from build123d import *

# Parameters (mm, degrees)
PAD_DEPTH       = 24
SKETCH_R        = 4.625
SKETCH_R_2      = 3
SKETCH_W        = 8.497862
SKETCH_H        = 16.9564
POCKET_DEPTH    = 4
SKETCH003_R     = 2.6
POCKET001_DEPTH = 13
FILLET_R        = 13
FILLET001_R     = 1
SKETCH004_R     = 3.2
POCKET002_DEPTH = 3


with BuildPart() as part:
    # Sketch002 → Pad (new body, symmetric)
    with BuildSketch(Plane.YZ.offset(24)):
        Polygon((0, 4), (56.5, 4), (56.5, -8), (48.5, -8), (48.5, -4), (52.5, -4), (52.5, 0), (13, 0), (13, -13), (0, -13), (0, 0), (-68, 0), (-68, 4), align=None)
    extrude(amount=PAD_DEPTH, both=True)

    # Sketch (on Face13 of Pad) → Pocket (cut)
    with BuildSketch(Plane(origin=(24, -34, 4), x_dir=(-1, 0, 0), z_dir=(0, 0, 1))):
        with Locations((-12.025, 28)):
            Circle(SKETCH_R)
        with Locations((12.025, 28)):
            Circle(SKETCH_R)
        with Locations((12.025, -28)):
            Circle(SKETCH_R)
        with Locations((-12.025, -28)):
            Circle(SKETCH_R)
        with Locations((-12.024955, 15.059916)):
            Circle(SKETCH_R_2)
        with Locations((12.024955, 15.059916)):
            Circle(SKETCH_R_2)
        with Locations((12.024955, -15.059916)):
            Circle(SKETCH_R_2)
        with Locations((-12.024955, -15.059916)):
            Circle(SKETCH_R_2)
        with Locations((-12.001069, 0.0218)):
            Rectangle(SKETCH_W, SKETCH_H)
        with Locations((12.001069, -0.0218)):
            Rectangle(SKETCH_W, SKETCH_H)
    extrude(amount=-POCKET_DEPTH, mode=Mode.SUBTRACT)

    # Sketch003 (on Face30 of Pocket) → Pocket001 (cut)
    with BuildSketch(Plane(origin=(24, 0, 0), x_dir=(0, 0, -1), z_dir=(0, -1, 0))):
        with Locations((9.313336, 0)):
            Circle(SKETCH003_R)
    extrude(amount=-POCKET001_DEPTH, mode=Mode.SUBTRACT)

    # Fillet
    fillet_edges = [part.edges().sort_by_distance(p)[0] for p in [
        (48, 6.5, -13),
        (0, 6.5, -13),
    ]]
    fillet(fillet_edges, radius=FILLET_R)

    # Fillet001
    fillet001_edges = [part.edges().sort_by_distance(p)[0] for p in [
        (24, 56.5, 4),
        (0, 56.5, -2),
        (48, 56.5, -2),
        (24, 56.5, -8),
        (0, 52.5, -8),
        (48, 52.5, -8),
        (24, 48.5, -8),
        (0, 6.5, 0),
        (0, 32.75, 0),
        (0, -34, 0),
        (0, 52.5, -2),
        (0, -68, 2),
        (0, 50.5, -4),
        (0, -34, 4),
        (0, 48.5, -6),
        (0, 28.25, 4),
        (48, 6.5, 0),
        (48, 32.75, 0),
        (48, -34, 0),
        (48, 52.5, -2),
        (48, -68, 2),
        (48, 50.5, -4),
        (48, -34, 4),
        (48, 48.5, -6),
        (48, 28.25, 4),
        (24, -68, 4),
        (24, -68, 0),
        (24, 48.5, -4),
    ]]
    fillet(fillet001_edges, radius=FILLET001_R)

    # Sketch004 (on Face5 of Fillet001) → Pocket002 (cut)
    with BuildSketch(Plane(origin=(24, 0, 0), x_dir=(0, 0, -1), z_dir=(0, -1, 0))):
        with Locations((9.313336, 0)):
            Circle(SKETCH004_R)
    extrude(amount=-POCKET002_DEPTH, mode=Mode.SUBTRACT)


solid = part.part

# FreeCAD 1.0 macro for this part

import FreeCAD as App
import Part
import Sketcher

V = App.Vector


def edges_at(feature, points):
    """Names of the edges that pass closest to the given points."""
    edges = feature.Shape.Edges
    near = lambda p: min(range(len(edges)), key=lambda i: edges[i].distToShape(Part.Vertex(*p))[0])
    return sorted({f"Edge{near(p) + 1}" for p in points})

doc = App.newDocument("Part")
body = doc.addObject("PartDesign::Body", "Body")

sketch1 = doc.addObject("Sketcher::SketchObject", "Sketch")
body.addObject(sketch1)
sketch1.AttachmentSupport = (doc.YZ_Plane, [""])
sketch1.MapMode = "FlatFace"
sketch1.AttachmentOffset = App.Placement(V(0, 0, 24), App.Rotation())
sketch1.addGeometry(Part.LineSegment(V(56.5, 4, 0), V(-68, 4, 0)), False)
sketch1.addGeometry(Part.LineSegment(V(-68, 4, 0), V(-68, 0, 0)), False)
sketch1.addGeometry(Part.LineSegment(V(-68, 0, 0), V(0, 0, 0)), False)
sketch1.addGeometry(Part.LineSegment(V(0, 0, 0), V(0, -13, 0)), False)
sketch1.addGeometry(Part.LineSegment(V(0, -13, 0), V(13, -13, 0)), False)
sketch1.addGeometry(Part.LineSegment(V(13, -13, 0), V(13, 0, 0)), False)
sketch1.addGeometry(Part.LineSegment(V(13, 0, 0), V(52.5, 0, 0)), False)
sketch1.addGeometry(Part.LineSegment(V(52.5, 0, 0), V(52.5, -4, 0)), False)
sketch1.addGeometry(Part.LineSegment(V(52.5, -4, 0), V(48.5, -4, 0)), False)
sketch1.addGeometry(Part.LineSegment(V(48.5, -4, 0), V(48.5, -8, 0)), False)
sketch1.addGeometry(Part.LineSegment(V(48.5, -8, 0), V(56.5, -8, 0)), False)
sketch1.addGeometry(Part.LineSegment(V(56.5, -8, 0), V(56.5, 4, 0)), False)
sketch1.addConstraint(Sketcher.Constraint("Coincident", 0, 2, 1, 1))
sketch1.addConstraint(Sketcher.Constraint("Coincident", 1, 2, 2, 1))
sketch1.addConstraint(Sketcher.Constraint("Coincident", 2, 2, 3, 1))
sketch1.addConstraint(Sketcher.Constraint("Coincident", 3, 2, 4, 1))
sketch1.addConstraint(Sketcher.Constraint("Coincident", 4, 2, 5, 1))
sketch1.addConstraint(Sketcher.Constraint("Coincident", 5, 2, 6, 1))
sketch1.addConstraint(Sketcher.Constraint("Coincident", 6, 2, 7, 1))
sketch1.addConstraint(Sketcher.Constraint("Coincident", 7, 2, 8, 1))
sketch1.addConstraint(Sketcher.Constraint("Coincident", 8, 2, 9, 1))
sketch1.addConstraint(Sketcher.Constraint("Coincident", 9, 2, 10, 1))
sketch1.addConstraint(Sketcher.Constraint("Coincident", 10, 2, 11, 1))
sketch1.addConstraint(Sketcher.Constraint("Coincident", 11, 2, 0, 1))
sketch1.addConstraint(Sketcher.Constraint("Horizontal", 0))
sketch1.addConstraint(Sketcher.Constraint("Vertical", 1))
sketch1.addConstraint(Sketcher.Constraint("Horizontal", 2))
sketch1.addConstraint(Sketcher.Constraint("Vertical", 3))
sketch1.addConstraint(Sketcher.Constraint("Horizontal", 4))
sketch1.addConstraint(Sketcher.Constraint("Vertical", 5))
sketch1.addConstraint(Sketcher.Constraint("Horizontal", 6))
sketch1.addConstraint(Sketcher.Constraint("Vertical", 7))
sketch1.addConstraint(Sketcher.Constraint("Horizontal", 8))
sketch1.addConstraint(Sketcher.Constraint("Vertical", 9))
sketch1.addConstraint(Sketcher.Constraint("Horizontal", 10))
sketch1.addConstraint(Sketcher.Constraint("Vertical", 11))
sketch1.addConstraint(Sketcher.Constraint("Coincident", 2, 2, -1, 1))
sketch1.addConstraint(Sketcher.Constraint("PointOnObject", 5, 2, -1))
sketch1.addConstraint(Sketcher.Constraint("Equal", 8, 1))
sketch1.addConstraint(Sketcher.Constraint("Equal", 4, 3))
sketch1.addConstraint(Sketcher.Constraint("Equal", 1, 7))
sketch1.addConstraint(Sketcher.Constraint("Equal", 7, 9))
sketch1.addConstraint(Sketcher.Constraint("DistanceX", 2, 1, 2, 2, 68.0))
sketch1.addConstraint(Sketcher.Constraint("DistanceX", 4, 1, 4, 2, 13.0))
sketch1.addConstraint(Sketcher.Constraint("DistanceX", 8, 2, 8, 1, 4.0))
sketch1.addConstraint(Sketcher.Constraint("DistanceX", 10, 1, 10, 2, 8.0))
sketch1.addConstraint(Sketcher.Constraint("DistanceX", 0, 2, 0, 1, 124.5))
pad1 = doc.addObject("PartDesign::Pad", "Pad")
body.addObject(pad1)
pad1.Profile = sketch1
pad1.Length = 48
pad1.Midplane = True

sketch2 = doc.addObject("Sketcher::SketchObject", "Sketch001")
body.addObject(sketch2)
sketch2.AttachmentSupport = (doc.XY_Plane, [""])
sketch2.MapMode = "FlatFace"
sketch2.AttachmentOffset = App.Placement(V(0, 0, 4), App.Rotation())
sketch2.addGeometry(Part.Circle(V(36, -62, 0), V(0, 0, 1), 4.6), False)
sketch2.addGeometry(Part.Circle(V(12, -62, 0), V(0, 0, 1), 4.6), False)
sketch2.addGeometry(Part.Circle(V(12, -6, 0), V(0, 0, 1), 4.6), False)
sketch2.addGeometry(Part.Circle(V(36, -6, 0), V(0, 0, 1), 4.6), False)
sketch2.addGeometry(Part.Circle(V(36, -49.1, 0), V(0, 0, 1), 3), False)
sketch2.addGeometry(Part.Circle(V(12, -49.1, 0), V(0, 0, 1), 3), False)
sketch2.addGeometry(Part.Circle(V(12, -18.9, 0), V(0, 0, 1), 3), False)
sketch2.addGeometry(Part.Circle(V(36, -18.9, 0), V(0, 0, 1), 3), False)
sketch2.addGeometry(Part.LineSegment(V(40.2, -42.5, 0), V(40.2, -25.5, 0)), False)
sketch2.addGeometry(Part.LineSegment(V(40.2, -25.5, 0), V(31.8, -25.5, 0)), False)
sketch2.addGeometry(Part.LineSegment(V(31.8, -25.5, 0), V(31.8, -42.5, 0)), False)
sketch2.addGeometry(Part.LineSegment(V(31.8, -42.5, 0), V(40.2, -42.5, 0)), False)
sketch2.addGeometry(Part.LineSegment(V(16.2, -42.5, 0), V(16.2, -25.5, 0)), False)
sketch2.addGeometry(Part.LineSegment(V(16.2, -25.5, 0), V(7.8, -25.5, 0)), False)
sketch2.addGeometry(Part.LineSegment(V(7.8, -25.5, 0), V(7.8, -42.5, 0)), False)
sketch2.addGeometry(Part.LineSegment(V(7.8, -42.5, 0), V(16.2, -42.5, 0)), False)
sketch2.addConstraint(Sketcher.Constraint("Coincident", 8, 2, 9, 1))
sketch2.addConstraint(Sketcher.Constraint("Coincident", 9, 2, 10, 1))
sketch2.addConstraint(Sketcher.Constraint("Coincident", 10, 2, 11, 1))
sketch2.addConstraint(Sketcher.Constraint("Coincident", 11, 2, 8, 1))
sketch2.addConstraint(Sketcher.Constraint("Coincident", 12, 2, 13, 1))
sketch2.addConstraint(Sketcher.Constraint("Coincident", 13, 2, 14, 1))
sketch2.addConstraint(Sketcher.Constraint("Coincident", 14, 2, 15, 1))
sketch2.addConstraint(Sketcher.Constraint("Coincident", 15, 2, 12, 1))
sketch2.addConstraint(Sketcher.Constraint("Vertical", 8))
sketch2.addConstraint(Sketcher.Constraint("Horizontal", 9))
sketch2.addConstraint(Sketcher.Constraint("Vertical", 10))
sketch2.addConstraint(Sketcher.Constraint("Horizontal", 11))
sketch2.addConstraint(Sketcher.Constraint("Vertical", 12))
sketch2.addConstraint(Sketcher.Constraint("Horizontal", 13))
sketch2.addConstraint(Sketcher.Constraint("Vertical", 14))
sketch2.addConstraint(Sketcher.Constraint("Horizontal", 15))
sketch2.addConstraint(Sketcher.Constraint("Equal", 0, 1))
sketch2.addConstraint(Sketcher.Constraint("Equal", 1, 2))
sketch2.addConstraint(Sketcher.Constraint("Equal", 2, 3))
sketch2.addConstraint(Sketcher.Constraint("Equal", 4, 5))
sketch2.addConstraint(Sketcher.Constraint("Equal", 5, 6))
sketch2.addConstraint(Sketcher.Constraint("Equal", 6, 7))
sketch2.addConstraint(Sketcher.Constraint("Horizontal", 0, 3, 1, 3))
sketch2.addConstraint(Sketcher.Constraint("Horizontal", 2, 3, 3, 3))
sketch2.addConstraint(Sketcher.Constraint("Horizontal", 4, 3, 5, 3))
sketch2.addConstraint(Sketcher.Constraint("Horizontal", 6, 3, 7, 3))
sketch2.addConstraint(Sketcher.Constraint("Vertical", 1, 3, 2, 3))
sketch2.addConstraint(Sketcher.Constraint("Vertical", 0, 3, 3, 3))
sketch2.addConstraint(Sketcher.Constraint("Vertical", 5, 3, 6, 3))
sketch2.addConstraint(Sketcher.Constraint("Vertical", 4, 3, 7, 3))
sketch2.addConstraint(Sketcher.Constraint("Equal", 11, 13))
sketch2.addConstraint(Sketcher.Constraint("Equal", 10, 12))
sketch2.addConstraint(Sketcher.Constraint("Diameter", 4, 6.0))
sketch2.addConstraint(Sketcher.Constraint("Diameter", 0, 9.25))
sketch2.addConstraint(Sketcher.Constraint("DistanceY", 0, 3, -1, 1, 62.0))
sketch2.addConstraint(Sketcher.Constraint("DistanceY", 2, 3, -1, 1, 6.0))
sketch2.addConstraint(Sketcher.Constraint("DistanceY", 10, 2, 12, 2, 17.0))
sketch2.addConstraint(Sketcher.Constraint("DistanceY", 10, 2, -1, 1, 42.5))
sketch2.addConstraint(Sketcher.Constraint("DistanceX", -1, 1, 8, 2, 40.25))
sketch2.addConstraint(Sketcher.Constraint("DistanceX", -1, 1, 13, 2, 7.75))
sketch2.addConstraint(Sketcher.Constraint("DistanceX", 1, 3, 0, 3, 24.05))
sketch2.addConstraint(Sketcher.Constraint("DistanceY", 8, 1, 8, 2, 16.9564))
sketch2.addConstraint(Sketcher.Constraint("DistanceX", -1, 1, 0, 3, 36.025))
sketch2.addConstraint(Sketcher.Constraint("DistanceX", 9, 2, 9, 1, 8.497862))
sketch2.addConstraint(Sketcher.Constraint("DistanceX", 5, 3, 4, 3, 24.04991))
sketch2.addConstraint(Sketcher.Constraint("DistanceX", -1, 1, 4, 3, 36.024955))
sketch2.addConstraint(Sketcher.Constraint("DistanceY", 4, 3, -1, 1, 49.059916))
sketch2.addConstraint(Sketcher.Constraint("DistanceY", 6, 3, -1, 1, 18.940084))
pocket1 = doc.addObject("PartDesign::Pocket", "Pocket")
body.addObject(pocket1)
pocket1.Profile = sketch2
pocket1.Length = 4

sketch3 = doc.addObject("Sketcher::SketchObject", "Sketch002")
body.addObject(sketch3)
sketch3.AttachmentSupport = (doc.XZ_Plane, [""])
sketch3.MapMode = "FlatFace"
sketch3.addGeometry(Part.Circle(V(24, -9.3, 0), V(0, 0, 1), 2.6), False)
sketch3.addConstraint(Sketcher.Constraint("Diameter", 0, 5.2))
sketch3.addConstraint(Sketcher.Constraint("DistanceX", -1, 1, 0, 3, 24.0))
sketch3.addConstraint(Sketcher.Constraint("DistanceY", 0, 3, -1, 1, 9.313336))
pocket2 = doc.addObject("PartDesign::Pocket", "Pocket001")
body.addObject(pocket2)
pocket2.Profile = sketch3
pocket2.Length = 13
doc.recompute()

fillet = doc.addObject("PartDesign::Fillet", "Fillet")
body.addObject(fillet)
fillet.Base = (pocket2, edges_at(pocket2, [(48, 6.5, -13), (0, 6.5, -13)]))
fillet.Radius = 13
doc.recompute()

fillet2 = doc.addObject("PartDesign::Fillet", "Fillet001")
body.addObject(fillet2)
fillet2.Base = (fillet, edges_at(fillet, [
    (24, 56.5, 4),
    (0, 56.5, -2),
    (48, 56.5, -2),
    (24, 56.5, -8),
    (0, 52.5, -8),
    (48, 52.5, -8),
    (24, 48.5, -8),
    (0, 6.5, 0),
    (0, 32.75, 0),
    (0, -34, 0),
    (0, 52.5, -2),
    (0, -68, 2),
    (0, 50.5, -4),
    (0, -5.75, 4),
    (0, 48.5, -6),
    (0, -5.75, 4),
    (48, 6.5, 0),
    (48, 32.75, 0),
    (48, -34, 0),
    (48, 52.5, -2),
    (48, -68, 2),
    (48, 50.5, -4),
    (48, -5.75, 4),
    (48, 48.5, -6),
    (48, -5.75, 4),
    (24, -68, 4),
    (24, -68, 0),
    (24, 48.5, -4),
]))
fillet2.Radius = 1

sketch4 = doc.addObject("Sketcher::SketchObject", "Sketch003")
body.addObject(sketch4)
sketch4.AttachmentSupport = (doc.XZ_Plane, [""])
sketch4.MapMode = "FlatFace"
sketch4.addGeometry(Part.Circle(V(24, -9.3, 0), V(0, 0, 1), 3.2), False)
sketch4.addConstraint(Sketcher.Constraint("Diameter", 0, 6.4))
sketch4.addConstraint(Sketcher.Constraint("DistanceX", -1, 1, 0, 3, 24.0))
sketch4.addConstraint(Sketcher.Constraint("DistanceY", 0, 3, -1, 1, 9.313336))
pocket3 = doc.addObject("PartDesign::Pocket", "Pocket002")
body.addObject(pocket3)
pocket3.Profile = sketch4
pocket3.Length = 3

doc.recompute()
